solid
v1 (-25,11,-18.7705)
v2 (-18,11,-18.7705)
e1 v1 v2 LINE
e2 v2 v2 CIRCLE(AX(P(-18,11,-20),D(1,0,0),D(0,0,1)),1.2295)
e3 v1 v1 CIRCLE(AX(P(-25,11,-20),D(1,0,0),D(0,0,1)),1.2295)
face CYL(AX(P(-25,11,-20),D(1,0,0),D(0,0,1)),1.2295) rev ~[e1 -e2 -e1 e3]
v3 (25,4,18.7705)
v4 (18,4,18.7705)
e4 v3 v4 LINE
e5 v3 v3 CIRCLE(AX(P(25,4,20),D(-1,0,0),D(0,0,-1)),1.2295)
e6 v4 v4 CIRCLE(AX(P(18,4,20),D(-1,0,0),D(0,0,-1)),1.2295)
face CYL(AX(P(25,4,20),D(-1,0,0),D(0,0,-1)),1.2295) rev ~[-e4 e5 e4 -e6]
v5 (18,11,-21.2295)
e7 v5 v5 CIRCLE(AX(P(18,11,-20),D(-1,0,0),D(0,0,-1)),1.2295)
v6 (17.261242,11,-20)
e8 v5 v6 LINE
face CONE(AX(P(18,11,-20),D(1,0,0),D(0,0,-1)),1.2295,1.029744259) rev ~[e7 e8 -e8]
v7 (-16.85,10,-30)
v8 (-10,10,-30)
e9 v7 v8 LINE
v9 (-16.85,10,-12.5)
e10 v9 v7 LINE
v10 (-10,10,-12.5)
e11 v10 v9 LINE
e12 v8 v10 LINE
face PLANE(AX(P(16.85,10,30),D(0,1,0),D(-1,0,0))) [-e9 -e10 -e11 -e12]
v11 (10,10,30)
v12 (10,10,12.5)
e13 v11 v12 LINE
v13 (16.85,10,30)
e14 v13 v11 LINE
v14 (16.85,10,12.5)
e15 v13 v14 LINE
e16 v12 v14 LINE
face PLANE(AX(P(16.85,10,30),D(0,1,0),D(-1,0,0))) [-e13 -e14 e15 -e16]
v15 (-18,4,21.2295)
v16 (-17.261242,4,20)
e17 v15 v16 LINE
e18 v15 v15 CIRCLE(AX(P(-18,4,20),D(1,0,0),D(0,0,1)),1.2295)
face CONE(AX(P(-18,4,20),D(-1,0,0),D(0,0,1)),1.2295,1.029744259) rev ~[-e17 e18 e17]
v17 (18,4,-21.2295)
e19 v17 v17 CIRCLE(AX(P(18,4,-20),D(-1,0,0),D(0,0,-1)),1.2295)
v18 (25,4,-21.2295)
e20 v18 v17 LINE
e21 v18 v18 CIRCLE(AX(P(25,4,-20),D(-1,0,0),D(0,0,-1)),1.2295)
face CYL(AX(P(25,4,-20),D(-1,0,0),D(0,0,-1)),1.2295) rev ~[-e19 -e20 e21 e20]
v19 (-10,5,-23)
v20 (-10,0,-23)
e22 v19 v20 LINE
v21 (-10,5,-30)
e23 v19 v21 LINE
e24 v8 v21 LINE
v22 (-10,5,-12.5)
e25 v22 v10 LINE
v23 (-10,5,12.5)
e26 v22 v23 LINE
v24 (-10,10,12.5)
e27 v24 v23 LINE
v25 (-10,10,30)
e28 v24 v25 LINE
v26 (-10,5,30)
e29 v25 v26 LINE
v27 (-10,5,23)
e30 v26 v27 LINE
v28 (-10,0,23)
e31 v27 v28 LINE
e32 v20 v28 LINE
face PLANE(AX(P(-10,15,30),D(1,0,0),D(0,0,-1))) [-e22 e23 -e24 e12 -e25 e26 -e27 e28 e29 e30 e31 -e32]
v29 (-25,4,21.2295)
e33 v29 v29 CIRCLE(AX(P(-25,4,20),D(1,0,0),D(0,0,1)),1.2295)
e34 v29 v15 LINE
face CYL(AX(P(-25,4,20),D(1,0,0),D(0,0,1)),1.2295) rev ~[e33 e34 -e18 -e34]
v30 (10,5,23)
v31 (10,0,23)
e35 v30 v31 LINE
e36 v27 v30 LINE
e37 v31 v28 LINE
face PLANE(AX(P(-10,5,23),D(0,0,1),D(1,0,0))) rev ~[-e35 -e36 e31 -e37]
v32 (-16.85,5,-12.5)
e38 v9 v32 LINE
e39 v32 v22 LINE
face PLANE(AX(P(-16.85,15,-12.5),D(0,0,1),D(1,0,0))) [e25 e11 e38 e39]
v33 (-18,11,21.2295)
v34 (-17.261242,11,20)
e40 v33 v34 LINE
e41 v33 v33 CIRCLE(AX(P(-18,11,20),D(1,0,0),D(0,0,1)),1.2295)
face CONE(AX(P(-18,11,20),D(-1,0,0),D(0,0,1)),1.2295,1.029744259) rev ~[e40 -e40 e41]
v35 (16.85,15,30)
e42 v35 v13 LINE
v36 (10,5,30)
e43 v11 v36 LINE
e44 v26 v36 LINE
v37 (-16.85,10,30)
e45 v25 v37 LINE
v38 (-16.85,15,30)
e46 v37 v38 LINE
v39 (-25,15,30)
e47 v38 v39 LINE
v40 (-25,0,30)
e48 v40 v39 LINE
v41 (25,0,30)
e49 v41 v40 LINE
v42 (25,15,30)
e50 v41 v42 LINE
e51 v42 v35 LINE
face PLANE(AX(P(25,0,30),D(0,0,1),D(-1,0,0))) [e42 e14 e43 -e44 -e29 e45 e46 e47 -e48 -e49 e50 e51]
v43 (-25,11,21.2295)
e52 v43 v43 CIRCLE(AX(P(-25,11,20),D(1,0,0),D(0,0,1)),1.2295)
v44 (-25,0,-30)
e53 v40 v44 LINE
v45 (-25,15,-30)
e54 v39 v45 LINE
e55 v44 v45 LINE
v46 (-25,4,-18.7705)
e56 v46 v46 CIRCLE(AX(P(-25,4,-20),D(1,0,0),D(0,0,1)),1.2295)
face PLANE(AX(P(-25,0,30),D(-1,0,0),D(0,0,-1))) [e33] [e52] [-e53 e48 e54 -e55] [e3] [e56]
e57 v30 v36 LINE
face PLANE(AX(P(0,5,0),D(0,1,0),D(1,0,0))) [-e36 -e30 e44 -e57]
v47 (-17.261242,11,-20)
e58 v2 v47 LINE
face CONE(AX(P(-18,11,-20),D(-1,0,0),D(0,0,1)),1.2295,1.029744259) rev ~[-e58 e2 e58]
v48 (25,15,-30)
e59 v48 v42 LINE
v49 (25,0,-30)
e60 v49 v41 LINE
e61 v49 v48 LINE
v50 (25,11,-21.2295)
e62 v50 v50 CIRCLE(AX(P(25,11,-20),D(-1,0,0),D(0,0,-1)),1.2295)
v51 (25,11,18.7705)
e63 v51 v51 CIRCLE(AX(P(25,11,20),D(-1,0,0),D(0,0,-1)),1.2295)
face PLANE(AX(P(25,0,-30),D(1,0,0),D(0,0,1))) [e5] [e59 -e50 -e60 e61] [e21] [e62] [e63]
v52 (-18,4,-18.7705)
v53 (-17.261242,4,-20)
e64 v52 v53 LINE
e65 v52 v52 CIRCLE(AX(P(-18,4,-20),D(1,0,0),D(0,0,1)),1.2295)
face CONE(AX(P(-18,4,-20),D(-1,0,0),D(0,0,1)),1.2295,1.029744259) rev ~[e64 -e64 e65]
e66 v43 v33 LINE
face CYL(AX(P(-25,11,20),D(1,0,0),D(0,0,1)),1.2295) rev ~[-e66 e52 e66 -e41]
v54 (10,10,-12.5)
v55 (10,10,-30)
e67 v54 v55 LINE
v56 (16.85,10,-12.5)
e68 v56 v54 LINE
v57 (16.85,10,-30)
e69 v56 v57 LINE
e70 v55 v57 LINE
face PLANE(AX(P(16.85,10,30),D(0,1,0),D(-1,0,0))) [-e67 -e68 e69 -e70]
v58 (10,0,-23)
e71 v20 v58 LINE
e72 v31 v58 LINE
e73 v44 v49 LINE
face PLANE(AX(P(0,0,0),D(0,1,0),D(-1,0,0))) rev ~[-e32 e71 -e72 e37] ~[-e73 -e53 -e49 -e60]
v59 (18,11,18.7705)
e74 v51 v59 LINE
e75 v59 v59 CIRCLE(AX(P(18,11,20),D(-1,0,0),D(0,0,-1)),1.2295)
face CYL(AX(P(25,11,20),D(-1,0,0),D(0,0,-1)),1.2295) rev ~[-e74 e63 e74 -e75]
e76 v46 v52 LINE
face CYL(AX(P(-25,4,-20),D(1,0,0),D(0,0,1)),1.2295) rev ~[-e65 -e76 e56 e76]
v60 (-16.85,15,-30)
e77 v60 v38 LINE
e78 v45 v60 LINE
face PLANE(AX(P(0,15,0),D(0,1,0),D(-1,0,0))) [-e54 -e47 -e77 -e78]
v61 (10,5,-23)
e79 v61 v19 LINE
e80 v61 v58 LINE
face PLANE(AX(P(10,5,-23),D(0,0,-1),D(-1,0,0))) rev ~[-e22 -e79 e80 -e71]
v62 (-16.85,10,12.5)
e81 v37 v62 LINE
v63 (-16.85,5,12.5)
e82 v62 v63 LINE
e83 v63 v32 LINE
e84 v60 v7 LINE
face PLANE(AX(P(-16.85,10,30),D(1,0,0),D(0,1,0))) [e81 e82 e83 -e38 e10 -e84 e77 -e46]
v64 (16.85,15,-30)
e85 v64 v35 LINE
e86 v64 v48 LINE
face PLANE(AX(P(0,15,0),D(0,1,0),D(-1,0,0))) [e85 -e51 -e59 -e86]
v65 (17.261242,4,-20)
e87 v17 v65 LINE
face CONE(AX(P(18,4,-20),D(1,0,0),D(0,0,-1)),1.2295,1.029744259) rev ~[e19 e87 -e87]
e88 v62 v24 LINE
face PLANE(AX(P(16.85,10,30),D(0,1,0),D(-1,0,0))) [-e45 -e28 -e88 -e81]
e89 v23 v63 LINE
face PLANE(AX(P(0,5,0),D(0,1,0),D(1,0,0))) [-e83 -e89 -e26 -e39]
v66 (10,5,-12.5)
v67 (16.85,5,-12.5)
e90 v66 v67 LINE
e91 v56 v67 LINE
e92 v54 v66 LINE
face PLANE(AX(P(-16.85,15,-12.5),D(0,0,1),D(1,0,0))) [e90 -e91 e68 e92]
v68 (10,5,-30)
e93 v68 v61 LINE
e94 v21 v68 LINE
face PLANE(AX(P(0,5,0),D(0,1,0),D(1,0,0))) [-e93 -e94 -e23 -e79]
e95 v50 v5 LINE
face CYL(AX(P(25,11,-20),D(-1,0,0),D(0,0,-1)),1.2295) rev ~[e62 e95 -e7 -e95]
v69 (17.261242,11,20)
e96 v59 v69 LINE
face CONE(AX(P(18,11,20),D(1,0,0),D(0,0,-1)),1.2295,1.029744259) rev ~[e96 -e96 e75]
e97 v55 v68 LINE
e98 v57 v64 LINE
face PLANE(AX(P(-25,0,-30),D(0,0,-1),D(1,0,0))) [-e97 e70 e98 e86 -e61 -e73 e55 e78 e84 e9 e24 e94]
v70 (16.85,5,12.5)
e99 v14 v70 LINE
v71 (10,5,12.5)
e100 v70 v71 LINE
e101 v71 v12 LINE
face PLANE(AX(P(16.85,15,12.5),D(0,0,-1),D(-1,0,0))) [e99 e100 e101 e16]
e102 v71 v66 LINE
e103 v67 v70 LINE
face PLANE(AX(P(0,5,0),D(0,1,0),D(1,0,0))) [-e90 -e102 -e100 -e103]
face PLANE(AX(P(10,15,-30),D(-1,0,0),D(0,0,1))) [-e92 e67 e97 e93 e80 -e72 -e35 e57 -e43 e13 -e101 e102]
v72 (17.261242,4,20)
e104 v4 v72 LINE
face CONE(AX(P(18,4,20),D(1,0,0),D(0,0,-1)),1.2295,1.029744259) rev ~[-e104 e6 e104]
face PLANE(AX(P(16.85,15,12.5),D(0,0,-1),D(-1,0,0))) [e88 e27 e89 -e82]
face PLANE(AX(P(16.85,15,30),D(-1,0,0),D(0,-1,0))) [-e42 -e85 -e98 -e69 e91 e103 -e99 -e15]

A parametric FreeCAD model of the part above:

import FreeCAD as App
import Part
import Sketcher
from FreeCAD import Vector

doc = App.newDocument("Part")
body = doc.addObject("PartDesign::Body", "Body")

# Sketch on XZ plane
sketch1 = body.newObject("Sketcher::SketchObject", "Sketch")
sketch1.AttachmentSupport = (doc.getObject("XZ_Plane"), [""])
sketch1.MapMode = "FlatFace"
sketch1.addGeometry([
    Part.LineSegment(Vector(25, -30, 0), Vector(-25, -30, 0)),
    Part.LineSegment(Vector(-25, -30, 0), Vector(-25, 30, 0)),
    Part.LineSegment(Vector(-25, 30, 0), Vector(25, 30, 0)),
    Part.LineSegment(Vector(25, 30, 0), Vector(25, -30, 0)),
], False)
sketch1.addConstraint([
    Sketcher.Constraint("Coincident", 0, 2, 1, 1),
    Sketcher.Constraint("Coincident", 1, 2, 2, 1),
    Sketcher.Constraint("Coincident", 2, 2, 3, 1),
    Sketcher.Constraint("Coincident", 3, 2, 0, 1),
    Sketcher.Constraint("Horizontal", 0),
    Sketcher.Constraint("Vertical", 1),
    Sketcher.Constraint("Horizontal", 2),
    Sketcher.Constraint("Vertical", 3),
    Sketcher.Constraint("Symmetric", 0, 2, 2, 2, -1, 1),
    Sketcher.Constraint("DistanceX", 0, 2, 0, 1, 50.0),
    Sketcher.Constraint("DistanceY", 1, 1, 1, 2, 60.0),
])
pad1 = body.newObject("PartDesign::Pad", "Pad")
pad1.Profile = sketch1
pad1.Length = 15
pad1.Reversed = True

# Sketch on XZ plane
sketch2 = body.newObject("Sketcher::SketchObject", "Sketch001")
sketch2.AttachmentSupport = (doc.getObject("XZ_Plane"), [""])
sketch2.MapMode = "FlatFace"
sketch2.AttachmentOffset = App.Placement(Vector(0, 0, -15), App.Rotation())
sketch2.addGeometry([
    Part.LineSegment(Vector(17, -12, 0), Vector(-17, -12, 0)),
    Part.LineSegment(Vector(-17, -12, 0), Vector(-17, 12, 0)),
    Part.LineSegment(Vector(-17, 12, 0), Vector(17, 12, 0)),
    Part.LineSegment(Vector(17, 12, 0), Vector(17, -12, 0)),
], False)
sketch2.addConstraint([
    Sketcher.Constraint("Coincident", 0, 2, 1, 1),
    Sketcher.Constraint("Coincident", 1, 2, 2, 1),
    Sketcher.Constraint("Coincident", 2, 2, 3, 1),
    Sketcher.Constraint("Coincident", 3, 2, 0, 1),
    Sketcher.Constraint("Horizontal", 0),
    Sketcher.Constraint("Vertical", 1),
    Sketcher.Constraint("Horizontal", 2),
    Sketcher.Constraint("Vertical", 3),
    Sketcher.Constraint("Symmetric", 0, 2, 2, 2, -1, 1),
    Sketcher.Constraint("DistanceY", 1, 1, 1, 2, 25.0),
    Sketcher.Constraint("DistanceX", 0, 2, 0, 1, 33.7),
])
pocket1 = body.newObject("PartDesign::Pocket", "Pocket")
pocket1.Profile = sketch2
pocket1.Length = 10
pocket1.Reversed = True

# Sketch on XZ plane
sketch3 = body.newObject("Sketcher::SketchObject", "Sketch002")
sketch3.AttachmentSupport = (doc.getObject("XZ_Plane"), [""])
sketch3.MapMode = "FlatFace"
sketch3.AttachmentOffset = App.Placement(Vector(0, 0, -15), App.Rotation())
sketch3.addGeometry([
    Part.LineSegment(Vector(10, -30, 0), Vector(-10, -30, 0)),
    Part.LineSegment(Vector(-10, -30, 0), Vector(-10, 30, 0)),
    Part.LineSegment(Vector(-10, 30, 0), Vector(10, 30, 0)),
    Part.LineSegment(Vector(10, 30, 0), Vector(10, -30, 0)),
], False)
sketch3.addConstraint([
    Sketcher.Constraint("Coincident", 0, 2, 1, 1),
    Sketcher.Constraint("Coincident", 1, 2, 2, 1),
    Sketcher.Constraint("Coincident", 2, 2, 3, 1),
    Sketcher.Constraint("Coincident", 3, 2, 0, 1),
    Sketcher.Constraint("Horizontal", 0),
    Sketcher.Constraint("Vertical", 1),
    Sketcher.Constraint("Horizontal", 2),
    Sketcher.Constraint("Vertical", 3),
    Sketcher.Constraint("Symmetric", 0, 2, 2, 2, -1, 1),
    Sketcher.Constraint("DistanceX", 0, 2, 0, 1, 20.0),
    Sketcher.Constraint("DistanceY", 1, 1, 1, 2, 60.0),
])
pocket2 = body.newObject("PartDesign::Pocket", "Pocket001")
pocket2.Profile = sketch3
pocket2.Length = 10
pocket2.Reversed = True

# Sketch on XZ plane
sketch4 = body.newObject("Sketcher::SketchObject", "Sketch003")
sketch4.AttachmentSupport = (doc.getObject("XZ_Plane"), [""])
sketch4.MapMode = "FlatFace"
sketch4.AttachmentOffset = App.Placement(Vector(0, 0, -5), App.Rotation())
sketch4.addGeometry([
    Part.LineSegment(Vector(10, 23, 0), Vector(10, -23, 0)),
    Part.LineSegment(Vector(10, -23, 0), Vector(-10, -23, 0)),
    Part.LineSegment(Vector(-10, -23, 0), Vector(-10, 23, 0)),
    Part.LineSegment(Vector(-10, 23, 0), Vector(10, 23, 0)),
], False)
sketch4.addConstraint([
    Sketcher.Constraint("Coincident", 0, 2, 1, 1),
    Sketcher.Constraint("Coincident", 1, 2, 2, 1),
    Sketcher.Constraint("Coincident", 2, 2, 3, 1),
    Sketcher.Constraint("Coincident", 3, 2, 0, 1),
    Sketcher.Constraint("Vertical", 0),
    Sketcher.Constraint("Horizontal", 1),
    Sketcher.Constraint("Vertical", 2),
    Sketcher.Constraint("Horizontal", 3),
    Sketcher.Constraint("Symmetric", 0, 2, 2, 2, -1, 1),
    Sketcher.Constraint("DistanceX", 1, 2, 1, 1, 20.0),
    Sketcher.Constraint("DistanceY", 0, 2, 0, 1, 46.0),
])
pocket3 = body.newObject("PartDesign::Pocket", "Pocket002")
pocket3.Profile = sketch4
pocket3.Type = "UpToFirst"
pocket3.Reversed = True

# Sketch on YZ plane
sketch5 = body.newObject("Sketcher::SketchObject", "Sketch004")
sketch5.AttachmentSupport = (doc.getObject("YZ_Plane"), [""])
sketch5.MapMode = "FlatFace"
sketch5.AttachmentOffset = App.Placement(Vector(0, 0, -25), App.Rotation())
sketch5.addGeometry([
    Part.Circle(Vector(4, -20, 0), Vector(0, 0, 1), 1.2),
    Part.Circle(Vector(4, 20, 0), Vector(0, 0, 1), 1.2),
    Part.Circle(Vector(11, 20, 0), Vector(0, 0, 1), 1.2),
    Part.Circle(Vector(11, -20, 0), Vector(0, 0, 1), 1.2),
], False)
sketch5.addConstraint([
    Sketcher.Constraint("Equal", 0, 1),
    Sketcher.Constraint("Equal", 1, 2),
    Sketcher.Constraint("Equal", 2, 3),
    Sketcher.Constraint("Symmetric", 0, 3, 1, 3, -1),
    Sketcher.Constraint("Symmetric", 2, 3, 3, 3, -1),
    Sketcher.Constraint("Horizontal", 1, 3, 2, 3),
    Sketcher.Constraint("Diameter", 0, 2.459),
    Sketcher.Constraint("DistanceX", -1, 1, 0, 3, 4.0),
    Sketcher.Constraint("DistanceY", 0, 3, -1, 1, 20.0),
    Sketcher.Constraint("DistanceX", -1, 1, 2, 3, 11.0),
])
doc.recompute()
hole = body.newObject("PartDesign::Hole", "Hole")
hole.Profile = sketch5
hole.ThreadType = "None"
hole.Diameter = 2.459
hole.DepthType = "Dimension"
hole.Depth = 7
hole.DrillPoint = "Angled"
hole.DrillPointAngle = 118
hole.Reversed = True

# Sketch on YZ plane
sketch6 = body.newObject("Sketcher::SketchObject", "Sketch005")
sketch6.AttachmentSupport = (doc.getObject("YZ_Plane"), [""])
sketch6.MapMode = "FlatFace"
sketch6.AttachmentOffset = App.Placement(Vector(0, 0, 25), App.Rotation())
sketch6.addGeometry([
    Part.Circle(Vector(4, 20, 0), Vector(0, 0, 1), 1.2),
    Part.Circle(Vector(11, 20, 0), Vector(0, 0, 1), 1.2),
    Part.Circle(Vector(11, -20, 0), Vector(0, 0, 1), 1.2),
    Part.Circle(Vector(4, -20, 0), Vector(0, 0, 1), 1.2),
], False)
sketch6.addConstraint([
    Sketcher.Constraint("Equal", 0, 1),
    Sketcher.Constraint("Equal", 1, 2),
    Sketcher.Constraint("Equal", 2, 3),
    Sketcher.Constraint("Symmetric", 1, 3, 2, 3, -1),
    Sketcher.Constraint("Symmetric", 0, 3, 3, 3, -1),
    Sketcher.Constraint("Horizontal", 0, 3, 1, 3),
    Sketcher.Constraint("Diameter", 0, 2.459),
    Sketcher.Constraint("DistanceX", -1, 1, 0, 3, 4.0),
    Sketcher.Constraint("DistanceY", -1, 1, 0, 3, 20.0),
    Sketcher.Constraint("DistanceX", -1, 1, 1, 3, 11.0),
])
doc.recompute()
hole2 = body.newObject("PartDesign::Hole", "Hole001")
hole2.Profile = sketch6
hole2.ThreadType = "None"
hole2.Diameter = 2.459
hole2.DepthType = "Dimension"
hole2.Depth = 7
hole2.DrillPoint = "Angled"
hole2.DrillPointAngle = 118

# Sketch on XY plane
sketch7 = body.newObject("Sketcher::SketchObject", "Sketch006")
sketch7.AttachmentSupport = (doc.getObject("XY_Plane"), [""])
sketch7.MapMode = "FlatFace"
sketch7.AttachmentOffset = App.Placement(Vector(0, 0, 30), App.Rotation())
sketch7.addGeometry([
    Part.LineSegment(Vector(17, 15, 0), Vector(-17, 15, 0)),
    Part.LineSegment(Vector(-17, 15, 0), Vector(-17, 10, 0)),
    Part.LineSegment(Vector(-17, 10, 0), Vector(17, 10, 0)),
    Part.LineSegment(Vector(17, 10, 0), Vector(17, 15, 0)),
], False)
sketch7.addConstraint([
    Sketcher.Constraint("Coincident", 0, 2, 1, 1),
    Sketcher.Constraint("Coincident", 1, 2, 2, 1),
    Sketcher.Constraint("Coincident", 2, 2, 3, 1),
    Sketcher.Constraint("Coincident", 3, 2, 0, 1),
    Sketcher.Constraint("Horizontal", 0),
    Sketcher.Constraint("Vertical", 1),
    Sketcher.Constraint("Horizontal", 2),
    Sketcher.Constraint("Vertical", 3),
    Sketcher.Constraint("DistanceY", 1, 2, 1, 1, 5.0),
    Sketcher.Constraint("DistanceX", 0, 2, 0, 1, 33.7),
    Sketcher.Constraint("DistanceY", -1, 1, 0, 2, 15.0),
    Sketcher.Constraint("DistanceX", 0, 2, -1, 1, 16.85),
])
pocket4 = body.newObject("PartDesign::Pocket", "Pocket003")
pocket4.Profile = sketch7
pocket4.Type = "ThroughAll"

doc.recompute()
